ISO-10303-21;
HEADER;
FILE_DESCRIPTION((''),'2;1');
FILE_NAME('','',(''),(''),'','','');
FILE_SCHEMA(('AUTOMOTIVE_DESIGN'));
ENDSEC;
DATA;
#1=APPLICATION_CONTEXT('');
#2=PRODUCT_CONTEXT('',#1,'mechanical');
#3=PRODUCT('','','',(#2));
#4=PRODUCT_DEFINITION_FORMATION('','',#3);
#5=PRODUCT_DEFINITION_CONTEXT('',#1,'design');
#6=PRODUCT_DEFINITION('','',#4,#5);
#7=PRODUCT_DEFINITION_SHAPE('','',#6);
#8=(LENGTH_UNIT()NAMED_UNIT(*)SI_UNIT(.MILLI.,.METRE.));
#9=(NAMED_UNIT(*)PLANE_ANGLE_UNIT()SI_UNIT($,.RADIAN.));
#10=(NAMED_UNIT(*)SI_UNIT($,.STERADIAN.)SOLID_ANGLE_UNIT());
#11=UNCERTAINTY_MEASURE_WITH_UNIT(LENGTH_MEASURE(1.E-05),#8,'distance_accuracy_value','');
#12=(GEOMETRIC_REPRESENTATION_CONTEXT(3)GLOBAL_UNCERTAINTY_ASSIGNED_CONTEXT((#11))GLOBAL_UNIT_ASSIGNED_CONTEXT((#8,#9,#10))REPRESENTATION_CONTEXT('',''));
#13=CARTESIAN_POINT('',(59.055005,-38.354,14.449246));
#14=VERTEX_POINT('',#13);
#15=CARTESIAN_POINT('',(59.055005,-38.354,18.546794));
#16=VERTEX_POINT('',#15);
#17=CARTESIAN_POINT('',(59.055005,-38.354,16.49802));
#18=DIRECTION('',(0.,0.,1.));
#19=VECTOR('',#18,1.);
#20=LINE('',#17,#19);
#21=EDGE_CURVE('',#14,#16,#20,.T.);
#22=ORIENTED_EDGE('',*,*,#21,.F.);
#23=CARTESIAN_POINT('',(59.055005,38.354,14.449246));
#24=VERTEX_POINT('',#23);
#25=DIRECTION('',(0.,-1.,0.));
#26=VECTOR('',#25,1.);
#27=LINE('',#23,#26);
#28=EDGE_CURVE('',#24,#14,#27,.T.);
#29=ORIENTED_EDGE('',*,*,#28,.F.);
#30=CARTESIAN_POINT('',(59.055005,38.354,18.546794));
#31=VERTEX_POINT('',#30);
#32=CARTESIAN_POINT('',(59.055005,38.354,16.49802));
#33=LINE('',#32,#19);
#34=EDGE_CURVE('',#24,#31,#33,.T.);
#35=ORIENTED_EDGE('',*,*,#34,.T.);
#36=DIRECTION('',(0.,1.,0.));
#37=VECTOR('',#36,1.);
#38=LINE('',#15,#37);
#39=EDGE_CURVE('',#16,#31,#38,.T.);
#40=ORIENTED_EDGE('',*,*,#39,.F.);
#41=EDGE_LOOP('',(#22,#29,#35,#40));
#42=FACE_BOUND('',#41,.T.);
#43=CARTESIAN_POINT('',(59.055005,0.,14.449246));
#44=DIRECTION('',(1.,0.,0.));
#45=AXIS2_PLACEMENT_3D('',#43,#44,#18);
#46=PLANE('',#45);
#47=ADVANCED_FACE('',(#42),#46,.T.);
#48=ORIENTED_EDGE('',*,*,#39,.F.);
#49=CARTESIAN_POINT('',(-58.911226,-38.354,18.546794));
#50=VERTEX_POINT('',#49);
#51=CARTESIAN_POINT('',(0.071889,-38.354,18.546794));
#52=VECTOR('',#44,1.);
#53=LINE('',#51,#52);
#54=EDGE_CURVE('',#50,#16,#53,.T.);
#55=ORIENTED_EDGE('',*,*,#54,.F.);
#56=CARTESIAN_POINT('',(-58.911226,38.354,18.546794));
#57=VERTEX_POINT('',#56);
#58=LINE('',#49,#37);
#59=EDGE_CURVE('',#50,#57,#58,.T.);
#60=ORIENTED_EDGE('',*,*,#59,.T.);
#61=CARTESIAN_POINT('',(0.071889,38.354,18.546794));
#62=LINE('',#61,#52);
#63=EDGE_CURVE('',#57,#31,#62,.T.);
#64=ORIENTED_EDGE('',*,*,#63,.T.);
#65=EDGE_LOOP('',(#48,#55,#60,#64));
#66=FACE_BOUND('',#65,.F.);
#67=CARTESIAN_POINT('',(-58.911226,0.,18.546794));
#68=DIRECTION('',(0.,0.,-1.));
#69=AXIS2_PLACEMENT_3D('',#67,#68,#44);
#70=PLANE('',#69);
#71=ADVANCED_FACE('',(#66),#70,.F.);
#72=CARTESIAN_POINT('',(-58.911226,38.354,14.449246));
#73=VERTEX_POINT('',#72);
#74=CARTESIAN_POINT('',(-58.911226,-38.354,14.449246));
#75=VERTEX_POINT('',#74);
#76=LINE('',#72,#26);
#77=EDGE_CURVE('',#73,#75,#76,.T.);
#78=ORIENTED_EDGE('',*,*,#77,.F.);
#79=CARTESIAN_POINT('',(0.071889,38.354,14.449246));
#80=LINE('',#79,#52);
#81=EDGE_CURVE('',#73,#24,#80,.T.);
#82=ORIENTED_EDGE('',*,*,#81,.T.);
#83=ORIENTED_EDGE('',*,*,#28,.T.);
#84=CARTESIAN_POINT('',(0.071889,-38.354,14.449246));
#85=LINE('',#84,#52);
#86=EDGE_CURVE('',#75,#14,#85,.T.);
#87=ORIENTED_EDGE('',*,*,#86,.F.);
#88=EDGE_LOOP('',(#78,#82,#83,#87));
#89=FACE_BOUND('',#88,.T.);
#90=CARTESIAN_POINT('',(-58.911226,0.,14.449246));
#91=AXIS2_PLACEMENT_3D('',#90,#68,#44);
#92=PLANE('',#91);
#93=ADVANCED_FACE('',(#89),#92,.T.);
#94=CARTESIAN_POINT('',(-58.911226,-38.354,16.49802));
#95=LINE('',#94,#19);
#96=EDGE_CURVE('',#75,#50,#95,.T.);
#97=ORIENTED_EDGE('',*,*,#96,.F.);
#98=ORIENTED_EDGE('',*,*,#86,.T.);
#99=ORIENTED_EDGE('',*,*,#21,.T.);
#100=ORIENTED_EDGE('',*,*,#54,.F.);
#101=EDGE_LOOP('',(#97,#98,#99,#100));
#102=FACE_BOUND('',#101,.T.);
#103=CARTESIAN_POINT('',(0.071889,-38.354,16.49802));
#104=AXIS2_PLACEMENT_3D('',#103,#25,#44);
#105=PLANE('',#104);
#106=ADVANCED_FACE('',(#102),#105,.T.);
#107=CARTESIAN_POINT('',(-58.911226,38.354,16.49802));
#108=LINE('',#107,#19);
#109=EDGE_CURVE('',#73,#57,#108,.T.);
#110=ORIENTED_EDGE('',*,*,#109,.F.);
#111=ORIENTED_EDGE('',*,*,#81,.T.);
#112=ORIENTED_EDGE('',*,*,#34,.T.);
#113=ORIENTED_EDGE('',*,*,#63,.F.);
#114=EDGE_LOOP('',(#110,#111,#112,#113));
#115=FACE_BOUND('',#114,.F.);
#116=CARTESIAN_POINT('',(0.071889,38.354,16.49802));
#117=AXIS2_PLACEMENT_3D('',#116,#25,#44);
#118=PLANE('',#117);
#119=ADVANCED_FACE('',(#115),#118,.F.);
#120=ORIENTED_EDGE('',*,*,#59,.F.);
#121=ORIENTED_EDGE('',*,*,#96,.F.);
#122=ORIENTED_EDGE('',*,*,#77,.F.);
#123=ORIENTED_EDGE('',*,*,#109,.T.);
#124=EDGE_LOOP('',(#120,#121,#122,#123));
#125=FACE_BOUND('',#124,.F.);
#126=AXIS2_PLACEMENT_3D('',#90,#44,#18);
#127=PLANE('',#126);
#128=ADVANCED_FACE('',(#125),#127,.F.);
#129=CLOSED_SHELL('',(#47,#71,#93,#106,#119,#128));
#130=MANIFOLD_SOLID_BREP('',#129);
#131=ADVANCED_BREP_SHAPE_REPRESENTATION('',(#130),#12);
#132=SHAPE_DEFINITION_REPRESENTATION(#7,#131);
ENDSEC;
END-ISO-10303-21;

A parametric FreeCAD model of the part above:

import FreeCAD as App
import Part
import Sketcher
from FreeCAD import Vector
Q = App.Units.Quantity

doc = App.newDocument("Part")
body = doc.addObject("PartDesign::Body", "Body")

# Sketch on XZ plane
sketch1 = doc.addObject("Sketcher::SketchObject", "Sketch")
body.addObject(sketch1)
sketch1.AttachmentSupport = (doc.XZ_Plane, [""])
sketch1.MapMode = "FlatFace"
sketch1.addGeometry(Part.LineSegment(Vector(-55.101227, 18.546794, 0), Vector(-55.101227, 14.449246, 0)), False)
sketch1.addGeometry(Part.LineSegment(Vector(-55.101227, 14.449246, 0), Vector(62.865004, 14.449246, 0)), False)
sketch1.addGeometry(Part.LineSegment(Vector(62.865004, 14.449246, 0), Vector(62.865004, 18.546794, 0)), False)
sketch1.addGeometry(Part.LineSegment(Vector(62.865004, 18.546794, 0), Vector(-55.101227, 18.546794, 0)), False)
sketch1.addConstraint(Sketcher.Constraint("Coincident", 0, 2, 1, 1))
sketch1.addConstraint(Sketcher.Constraint("Coincident", 1, 2, 2, 1))
sketch1.addConstraint(Sketcher.Constraint("Coincident", 2, 2, 3, 1))
sketch1.addConstraint(Sketcher.Constraint("Coincident", 3, 2, 0, 1))
sketch1.addConstraint(Sketcher.Constraint("Vertical", 0))
sketch1.addConstraint(Sketcher.Constraint("Horizontal", 1))
sketch1.addConstraint(Sketcher.Constraint("Vertical", 2))
sketch1.addConstraint(Sketcher.Constraint("Horizontal", 3))
sketch1.addConstraint(Sketcher.Constraint("DistanceX", -1, 1, 1, 2, Q("2.4750002 in")))
sketch1.addConstraint(Sketcher.Constraint("DistanceX", 1, 1, 1, 2, Q("117.966231 mm")))
sketch1.addConstraint(Sketcher.Constraint("DistanceY", 0, 2, 0, 1, Q("4.097548 mm")))
sketch1.addConstraint(Sketcher.Constraint("DistanceY", -1, 1, 0, 2, Q("14.449246 mm")))
pad1 = doc.addObject("PartDesign::Pad", "Pad")
body.addObject(pad1)
pad1.Profile = sketch1
pad1.Length = Q("3.02 in")
pad1.Midplane = True
body2 = doc.addObject("PartDesign::Body", "Body001")
doc.recompute()

body.Placement = App.Placement(Vector(-3.81, 0, 0), App.Rotation(Vector(0, 0, 1), 0))
boolean = doc.addObject("PartDesign::Boolean", "Boolean")
body2.addObject(boolean)
boolean.Type = "Fuse"
boolean.addObjects([body])

doc.recompute()
